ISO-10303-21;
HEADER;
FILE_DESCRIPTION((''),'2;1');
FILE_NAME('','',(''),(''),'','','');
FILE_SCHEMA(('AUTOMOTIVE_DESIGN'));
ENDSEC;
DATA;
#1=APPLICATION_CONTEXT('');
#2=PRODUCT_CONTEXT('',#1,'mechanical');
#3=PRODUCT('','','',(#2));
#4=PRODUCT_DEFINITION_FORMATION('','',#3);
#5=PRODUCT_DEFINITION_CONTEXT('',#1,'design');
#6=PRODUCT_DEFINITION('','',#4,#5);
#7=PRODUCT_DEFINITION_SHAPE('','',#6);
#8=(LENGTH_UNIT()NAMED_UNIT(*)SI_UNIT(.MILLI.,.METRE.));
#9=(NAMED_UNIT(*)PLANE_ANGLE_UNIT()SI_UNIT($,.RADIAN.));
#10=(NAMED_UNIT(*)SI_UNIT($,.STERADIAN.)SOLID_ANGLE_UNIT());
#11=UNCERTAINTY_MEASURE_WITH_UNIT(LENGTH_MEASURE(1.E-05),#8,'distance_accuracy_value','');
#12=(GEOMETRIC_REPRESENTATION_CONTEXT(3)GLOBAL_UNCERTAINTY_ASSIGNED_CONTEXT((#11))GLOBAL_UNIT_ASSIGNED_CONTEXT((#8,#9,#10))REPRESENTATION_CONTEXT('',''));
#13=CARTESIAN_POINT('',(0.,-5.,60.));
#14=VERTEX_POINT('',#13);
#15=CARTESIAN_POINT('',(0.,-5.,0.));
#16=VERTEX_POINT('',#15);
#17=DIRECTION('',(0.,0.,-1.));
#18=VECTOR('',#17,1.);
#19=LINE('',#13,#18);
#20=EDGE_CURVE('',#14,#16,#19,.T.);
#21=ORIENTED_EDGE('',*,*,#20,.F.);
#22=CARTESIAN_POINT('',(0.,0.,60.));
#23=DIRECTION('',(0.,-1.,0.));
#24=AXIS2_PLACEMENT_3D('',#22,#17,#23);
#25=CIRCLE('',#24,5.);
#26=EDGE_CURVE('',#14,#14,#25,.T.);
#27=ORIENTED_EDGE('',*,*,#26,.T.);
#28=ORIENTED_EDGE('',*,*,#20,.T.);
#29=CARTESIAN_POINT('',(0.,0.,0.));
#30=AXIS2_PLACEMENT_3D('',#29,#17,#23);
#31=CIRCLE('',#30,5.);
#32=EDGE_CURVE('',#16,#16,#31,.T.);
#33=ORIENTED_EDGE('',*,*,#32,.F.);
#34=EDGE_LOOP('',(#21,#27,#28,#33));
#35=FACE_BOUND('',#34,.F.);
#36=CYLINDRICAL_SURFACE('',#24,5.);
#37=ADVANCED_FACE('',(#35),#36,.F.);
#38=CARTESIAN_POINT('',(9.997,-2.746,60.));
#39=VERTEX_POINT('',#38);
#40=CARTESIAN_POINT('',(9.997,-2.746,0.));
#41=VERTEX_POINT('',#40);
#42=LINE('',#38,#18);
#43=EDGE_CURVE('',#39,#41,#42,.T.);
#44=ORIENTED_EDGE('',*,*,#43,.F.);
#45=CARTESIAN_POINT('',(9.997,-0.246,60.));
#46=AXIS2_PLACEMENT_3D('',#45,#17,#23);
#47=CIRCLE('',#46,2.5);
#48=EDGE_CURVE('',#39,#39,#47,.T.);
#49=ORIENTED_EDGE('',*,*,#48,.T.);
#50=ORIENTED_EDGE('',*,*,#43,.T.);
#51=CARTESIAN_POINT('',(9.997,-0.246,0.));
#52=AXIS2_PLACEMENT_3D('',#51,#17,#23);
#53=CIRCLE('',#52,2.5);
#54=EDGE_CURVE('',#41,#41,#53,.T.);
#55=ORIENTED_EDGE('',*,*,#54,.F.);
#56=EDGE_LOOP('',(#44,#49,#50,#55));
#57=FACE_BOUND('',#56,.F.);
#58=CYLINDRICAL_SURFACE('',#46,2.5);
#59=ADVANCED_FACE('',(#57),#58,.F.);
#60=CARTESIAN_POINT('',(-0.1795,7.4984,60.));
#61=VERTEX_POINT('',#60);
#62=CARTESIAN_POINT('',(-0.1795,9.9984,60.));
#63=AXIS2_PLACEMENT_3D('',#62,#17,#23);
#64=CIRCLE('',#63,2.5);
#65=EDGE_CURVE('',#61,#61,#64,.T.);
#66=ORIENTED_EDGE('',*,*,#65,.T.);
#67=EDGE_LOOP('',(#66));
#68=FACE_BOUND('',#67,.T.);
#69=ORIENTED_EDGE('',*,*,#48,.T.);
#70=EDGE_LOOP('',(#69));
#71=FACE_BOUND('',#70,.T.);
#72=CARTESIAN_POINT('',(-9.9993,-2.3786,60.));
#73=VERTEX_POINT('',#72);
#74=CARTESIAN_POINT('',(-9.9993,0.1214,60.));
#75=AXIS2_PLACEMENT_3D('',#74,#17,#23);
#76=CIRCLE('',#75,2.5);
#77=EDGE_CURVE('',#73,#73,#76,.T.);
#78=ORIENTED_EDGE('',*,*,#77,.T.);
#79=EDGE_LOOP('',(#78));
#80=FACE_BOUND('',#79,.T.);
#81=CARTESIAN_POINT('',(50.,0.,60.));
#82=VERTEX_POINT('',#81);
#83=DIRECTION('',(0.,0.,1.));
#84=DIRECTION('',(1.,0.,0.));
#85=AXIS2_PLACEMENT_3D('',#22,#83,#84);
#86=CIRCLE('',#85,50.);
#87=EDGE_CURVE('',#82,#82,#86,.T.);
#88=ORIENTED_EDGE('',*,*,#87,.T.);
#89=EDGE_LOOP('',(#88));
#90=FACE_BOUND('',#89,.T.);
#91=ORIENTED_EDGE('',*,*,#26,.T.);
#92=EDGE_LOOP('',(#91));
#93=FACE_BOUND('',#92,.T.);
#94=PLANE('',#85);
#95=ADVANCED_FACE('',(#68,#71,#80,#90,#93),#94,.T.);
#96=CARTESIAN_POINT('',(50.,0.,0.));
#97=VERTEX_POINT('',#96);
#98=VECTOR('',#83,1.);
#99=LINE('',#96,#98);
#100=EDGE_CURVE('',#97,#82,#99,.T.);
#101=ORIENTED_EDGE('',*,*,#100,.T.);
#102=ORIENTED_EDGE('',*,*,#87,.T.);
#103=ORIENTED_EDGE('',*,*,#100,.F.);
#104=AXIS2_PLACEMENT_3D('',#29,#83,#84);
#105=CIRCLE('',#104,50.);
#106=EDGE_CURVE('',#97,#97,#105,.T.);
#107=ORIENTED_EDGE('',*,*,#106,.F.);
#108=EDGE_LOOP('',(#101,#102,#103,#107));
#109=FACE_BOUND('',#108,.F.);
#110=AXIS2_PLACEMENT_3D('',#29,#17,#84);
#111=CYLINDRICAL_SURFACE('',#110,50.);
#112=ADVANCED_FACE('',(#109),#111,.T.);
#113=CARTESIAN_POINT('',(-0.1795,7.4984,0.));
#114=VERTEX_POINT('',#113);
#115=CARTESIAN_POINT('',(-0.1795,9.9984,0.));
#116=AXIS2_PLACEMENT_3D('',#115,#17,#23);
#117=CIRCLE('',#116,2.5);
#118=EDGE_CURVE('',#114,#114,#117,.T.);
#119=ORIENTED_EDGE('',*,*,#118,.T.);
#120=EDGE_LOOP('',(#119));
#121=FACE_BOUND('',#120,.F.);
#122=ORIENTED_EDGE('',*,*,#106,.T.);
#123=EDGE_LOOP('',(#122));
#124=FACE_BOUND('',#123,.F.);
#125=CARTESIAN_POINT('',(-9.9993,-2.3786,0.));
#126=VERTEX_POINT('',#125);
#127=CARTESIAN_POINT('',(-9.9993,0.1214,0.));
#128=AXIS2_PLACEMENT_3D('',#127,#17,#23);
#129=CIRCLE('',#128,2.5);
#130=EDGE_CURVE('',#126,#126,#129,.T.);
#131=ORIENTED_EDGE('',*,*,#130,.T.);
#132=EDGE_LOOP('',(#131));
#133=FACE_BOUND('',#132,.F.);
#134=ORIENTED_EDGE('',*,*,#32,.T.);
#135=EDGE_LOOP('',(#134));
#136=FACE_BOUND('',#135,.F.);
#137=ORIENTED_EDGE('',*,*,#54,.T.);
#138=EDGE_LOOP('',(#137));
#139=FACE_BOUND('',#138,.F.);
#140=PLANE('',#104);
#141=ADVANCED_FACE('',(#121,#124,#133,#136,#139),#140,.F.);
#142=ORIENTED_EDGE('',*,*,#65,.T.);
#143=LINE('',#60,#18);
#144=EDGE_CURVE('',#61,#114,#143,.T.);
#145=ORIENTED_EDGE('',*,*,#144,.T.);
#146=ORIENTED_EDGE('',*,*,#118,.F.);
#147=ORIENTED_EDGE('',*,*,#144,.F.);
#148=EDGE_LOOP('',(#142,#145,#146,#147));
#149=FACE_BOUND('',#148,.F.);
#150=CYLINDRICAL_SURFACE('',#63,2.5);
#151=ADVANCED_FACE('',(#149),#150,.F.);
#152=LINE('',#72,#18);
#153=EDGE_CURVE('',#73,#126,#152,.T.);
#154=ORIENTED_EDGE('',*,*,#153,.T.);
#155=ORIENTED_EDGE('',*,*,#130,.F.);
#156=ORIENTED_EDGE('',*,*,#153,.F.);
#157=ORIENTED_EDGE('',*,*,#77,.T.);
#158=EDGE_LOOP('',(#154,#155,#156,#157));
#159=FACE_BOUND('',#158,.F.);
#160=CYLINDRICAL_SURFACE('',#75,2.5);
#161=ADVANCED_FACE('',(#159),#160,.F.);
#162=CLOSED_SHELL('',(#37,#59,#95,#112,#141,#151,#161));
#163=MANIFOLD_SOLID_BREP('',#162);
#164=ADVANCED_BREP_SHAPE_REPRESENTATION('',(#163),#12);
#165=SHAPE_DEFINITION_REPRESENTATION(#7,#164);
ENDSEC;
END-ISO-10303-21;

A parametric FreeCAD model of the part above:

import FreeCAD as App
import Part
import Sketcher
Q = App.Units.Quantity

doc = App.newDocument("Part")
body = doc.addObject("PartDesign::Body", "Body")

# Sketch on XY plane
sketch1 = body.newObject("Sketcher::SketchObject", "Sketch")
sketch1.AttachmentSupport = (doc.getObject("XY_Plane"), [""])
sketch1.MapMode = "FlatFace"
sketch1.addGeometry(Part.Circle(App.Vector(0, 0, 0), App.Vector(0, 0, 1), 50), False)
sketch1.addConstraint(Sketcher.Constraint("Coincident", 0, 3, -1, 1))
sketch1.addConstraint(Sketcher.Constraint("Diameter", 0, Q("100 mm")))
pad1 = body.newObject("PartDesign::Pad", "Pad")
pad1.Profile = sketch1
pad1.Length = 60

# Sketch on XY plane
sketch2 = body.newObject("Sketcher::SketchObject", "Sketch001")
sketch2.AttachmentSupport = (doc.getObject("XY_Plane"), [""])
sketch2.MapMode = "FlatFace"
sketch2.AttachmentOffset = App.Placement(App.Vector(0, 0, 60), App.Rotation())
sketch2.addGeometry(Part.Circle(App.Vector(0, 0, 0), App.Vector(0, 0, 1), 5), False)
sketch2.addConstraint(Sketcher.Constraint("Coincident", 0, 3, -1, 1))
sketch2.addConstraint(Sketcher.Constraint("Diameter", 0, Q("10 mm")))
doc.recompute()
hole = body.newObject("PartDesign::Hole", "Hole")
hole.Profile = sketch2
hole.ThreadType = "None"
hole.Diameter = 10
hole.DepthType = "Dimension"
hole.Depth = 60
hole.DrillPoint = "Angled"
hole.DrillPointAngle = 118

# Sketch on XY plane
sketch3 = body.newObject("Sketcher::SketchObject", "Sketch002")
sketch3.AttachmentSupport = (doc.getObject("XY_Plane"), [""])
sketch3.MapMode = "FlatFace"
sketch3.AttachmentOffset = App.Placement(App.Vector(0, 0, 60), App.Rotation())
sketch3.addGeometry(Part.Circle(App.Vector(-10, 0.1, 0), App.Vector(0, 0, 1), 2.5), False)
sketch3.addGeometry(Part.Circle(App.Vector(-0.2, 10, 0), App.Vector(0, 0, 1), 2.5), False)
sketch3.addGeometry(Part.Circle(App.Vector(10, -0.2, 0), App.Vector(0, 0, 1), 2.5), False)
sketch3.addConstraint(Sketcher.Constraint("Equal", 0, 1))
sketch3.addConstraint(Sketcher.Constraint("Equal", 1, 2))
sketch3.addConstraint(Sketcher.Constraint("Diameter", 0, Q("5 mm")))
sketch3.addConstraint(Sketcher.Constraint("DistanceX", -1, 1, 2, 3, Q("9.997 mm")))
sketch3.addConstraint(Sketcher.Constraint("DistanceY", 2, 3, -1, 1, Q("0.246 mm")))
sketch3.addConstraint(Sketcher.Constraint("DistanceY", 0, 3, 1, 3, Q("9.877 mm")))
sketch3.addConstraint(Sketcher.Constraint("DistanceX", 0, 3, -1, 1, Q("9.9993 mm")))
sketch3.addConstraint(Sketcher.Constraint("DistanceY", -1, 1, 0, 3, Q("0.1214 mm")))
sketch3.addConstraint(Sketcher.Constraint("DistanceX", 1, 3, -1, 1, Q("0.1795 mm")))
doc.recompute()
hole2 = body.newObject("PartDesign::Hole", "Hole001")
hole2.Profile = sketch3
hole2.ThreadType = "None"
hole2.Diameter = 5
hole2.DepthType = "Dimension"
hole2.Depth = 60
hole2.DrillPoint = "Angled"
hole2.DrillPointAngle = 118

doc.recompute()
